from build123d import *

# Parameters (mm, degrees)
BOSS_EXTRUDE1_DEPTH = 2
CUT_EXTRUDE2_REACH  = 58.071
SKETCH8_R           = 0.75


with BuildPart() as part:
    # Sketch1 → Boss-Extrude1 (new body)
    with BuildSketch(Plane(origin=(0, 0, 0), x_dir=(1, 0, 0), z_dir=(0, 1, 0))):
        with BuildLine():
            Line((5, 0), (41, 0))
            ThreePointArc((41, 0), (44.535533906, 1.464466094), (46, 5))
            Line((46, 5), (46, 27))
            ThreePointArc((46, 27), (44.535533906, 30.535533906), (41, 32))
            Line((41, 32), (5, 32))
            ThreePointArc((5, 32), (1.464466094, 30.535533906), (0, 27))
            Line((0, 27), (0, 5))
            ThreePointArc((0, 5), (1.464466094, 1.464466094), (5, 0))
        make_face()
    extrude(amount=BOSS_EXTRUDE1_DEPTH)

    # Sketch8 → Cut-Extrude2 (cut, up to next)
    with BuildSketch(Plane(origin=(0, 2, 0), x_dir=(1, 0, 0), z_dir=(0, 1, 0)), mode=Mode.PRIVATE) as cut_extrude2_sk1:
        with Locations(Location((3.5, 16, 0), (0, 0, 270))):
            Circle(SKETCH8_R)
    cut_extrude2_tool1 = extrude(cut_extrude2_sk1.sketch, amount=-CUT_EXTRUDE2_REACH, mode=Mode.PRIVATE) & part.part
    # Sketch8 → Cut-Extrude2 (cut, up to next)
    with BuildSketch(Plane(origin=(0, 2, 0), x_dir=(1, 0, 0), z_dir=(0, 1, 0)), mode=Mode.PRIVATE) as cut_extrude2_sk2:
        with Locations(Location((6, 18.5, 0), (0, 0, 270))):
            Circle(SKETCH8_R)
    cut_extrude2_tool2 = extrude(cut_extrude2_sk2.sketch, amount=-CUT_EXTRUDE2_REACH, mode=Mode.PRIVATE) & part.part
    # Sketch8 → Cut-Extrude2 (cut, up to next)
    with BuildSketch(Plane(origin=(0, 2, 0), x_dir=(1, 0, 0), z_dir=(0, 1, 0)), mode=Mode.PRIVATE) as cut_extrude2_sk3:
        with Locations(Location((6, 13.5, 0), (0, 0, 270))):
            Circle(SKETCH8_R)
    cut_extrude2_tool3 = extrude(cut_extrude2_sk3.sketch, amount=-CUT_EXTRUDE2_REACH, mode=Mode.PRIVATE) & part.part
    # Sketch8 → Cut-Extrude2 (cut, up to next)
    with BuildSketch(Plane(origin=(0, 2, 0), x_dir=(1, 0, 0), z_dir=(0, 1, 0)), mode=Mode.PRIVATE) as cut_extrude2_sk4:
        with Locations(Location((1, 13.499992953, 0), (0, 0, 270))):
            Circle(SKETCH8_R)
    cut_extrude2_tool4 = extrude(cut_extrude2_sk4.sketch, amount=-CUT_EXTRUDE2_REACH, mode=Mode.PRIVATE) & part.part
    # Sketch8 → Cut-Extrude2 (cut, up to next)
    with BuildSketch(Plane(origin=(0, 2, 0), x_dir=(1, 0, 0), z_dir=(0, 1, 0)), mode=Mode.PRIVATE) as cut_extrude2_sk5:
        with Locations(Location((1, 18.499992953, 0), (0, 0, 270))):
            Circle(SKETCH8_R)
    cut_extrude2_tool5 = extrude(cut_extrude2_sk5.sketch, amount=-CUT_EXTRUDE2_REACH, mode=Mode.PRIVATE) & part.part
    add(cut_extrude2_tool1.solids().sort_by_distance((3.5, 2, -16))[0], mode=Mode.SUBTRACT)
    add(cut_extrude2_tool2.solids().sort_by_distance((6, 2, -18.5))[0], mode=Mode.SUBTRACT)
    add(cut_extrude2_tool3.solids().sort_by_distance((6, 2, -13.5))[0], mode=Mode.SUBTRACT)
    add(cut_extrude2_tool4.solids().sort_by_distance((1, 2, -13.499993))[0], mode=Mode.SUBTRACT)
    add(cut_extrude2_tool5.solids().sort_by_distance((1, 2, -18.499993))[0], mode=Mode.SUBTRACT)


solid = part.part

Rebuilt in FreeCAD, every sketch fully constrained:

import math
import FreeCAD as App
import Part
import Sketcher
from FreeCAD import Vector

doc = App.newDocument("Part")
params = doc.addObject("Spreadsheet::Sheet", "Params")
for row, (alias, value) in enumerate([
    ("sketch1_radius", "5 mm"),
    ("sketch1_width", "36 mm"),
    ("sketch1_height", "22 mm"),
    ("pad1_length", "2 mm"),
    ("sketch2_diameter", "1.5 mm"),
    ("sketch3_diameter", "1.5 mm"),
    ("sketch4_diameter", "1.5 mm"),
    ("sketch5_diameter", "1.5 mm"),
    ("sketch6_diameter", "1.5 mm"),
], start=1):
    params.set(f"A{row}", alias)
    params.set(f"B{row}", "=" + value)
    params.setAlias(f"B{row}", alias)

body = doc.addObject("PartDesign::Body", "Body")

sketch1 = doc.addObject("Sketcher::SketchObject", "Sketch")
body.addObject(sketch1)
sketch1.AttachmentSupport = (doc.XZ_Plane, [""])
sketch1.MapMode = "FlatFace"
sketch1.addGeometry([
    Part.LineSegment(Vector(5, 0, 0), Vector(41, 0, 0)),
    Part.ArcOfCircle(Part.Circle(Vector(41, -5, 0), Vector(0, 0, 1), 5), math.radians(0), math.radians(90)),
    Part.LineSegment(Vector(46, -5, 0), Vector(46, -27, 0)),
    Part.ArcOfCircle(Part.Circle(Vector(41, -27, 0), Vector(0, 0, 1), 5), math.radians(-90), math.radians(0)),
    Part.LineSegment(Vector(41, -32, 0), Vector(5, -32, 0)),
    Part.ArcOfCircle(Part.Circle(Vector(5, -27, 0), Vector(0, 0, 1), 5), math.radians(180), math.radians(270)),
    Part.LineSegment(Vector(0, -27, 0), Vector(0, -5, 0)),
    Part.ArcOfCircle(Part.Circle(Vector(5, -5, 0), Vector(0, 0, 1), 5), math.radians(90), math.radians(180)),
], False)
sketch1.addConstraint([
    Sketcher.Constraint("Tangent", 0, 2, 1, 2),
    Sketcher.Constraint("Tangent", 1, 1, 2, 1),
    Sketcher.Constraint("Tangent", 2, 2, 3, 2),
    Sketcher.Constraint("Tangent", 3, 1, 4, 1),
    Sketcher.Constraint("Tangent", 4, 2, 5, 2),
    Sketcher.Constraint("Tangent", 5, 1, 6, 1),
    Sketcher.Constraint("Tangent", 6, 2, 7, 2),
    Sketcher.Constraint("Tangent", 7, 1, 0, 1),
    Sketcher.Constraint("Horizontal", 0),
    Sketcher.Constraint("Vertical", 2),
    Sketcher.Constraint("Horizontal", 4),
    Sketcher.Constraint("Vertical", 6),
    Sketcher.Constraint("Equal", 1, 3),
    Sketcher.Constraint("Equal", 3, 5),
    Sketcher.Constraint("Equal", 5, 7),
    Sketcher.Constraint("PointOnObject", 0, 2, -1),
    Sketcher.Constraint("PointOnObject", 5, 1, -2),
    Sketcher.Constraint("Radius", 1, 5.0),
    Sketcher.Constraint("DistanceX", 0, 1, 0, 2, 36.0),
    Sketcher.Constraint("DistanceY", 2, 2, 2, 1, 22.0),
])
sketch1.setExpression("Constraints[17]", "Params.sketch1_radius")
sketch1.setExpression("Constraints[18]", "Params.sketch1_width")
sketch1.setExpression("Constraints[19]", "Params.sketch1_height")
pad1 = doc.addObject("PartDesign::Pad", "Pad")
body.addObject(pad1)
pad1.Profile = sketch1
pad1.setExpression("Length", "Params.pad1_length")
pad1.Reversed = True

sketch2 = doc.addObject("Sketcher::SketchObject", "Sketch001")
body.addObject(sketch2)
sketch2.AttachmentSupport = (doc.XZ_Plane, [""])
sketch2.MapMode = "FlatFace"
sketch2.AttachmentOffset = App.Placement(Vector(0, 0, -2), App.Rotation())
sketch2.addGeometry(Part.Circle(Vector(3.5, -16, 0), Vector(0, 0, 1), 0.8), False)
sketch2.addConstraint([
    Sketcher.Constraint("Diameter", 0, 1.5),
    Sketcher.Constraint("DistanceY", 0, 3, -1, 1, 16.0),
    Sketcher.Constraint("DistanceX", -1, 1, 0, 3, 3.5),
])
sketch2.setExpression("Constraints[0]", "Params.sketch2_diameter")
pocket1 = doc.addObject("PartDesign::Pocket", "Pocket")
body.addObject(pocket1)
pocket1.Profile = sketch2
pocket1.Type = "UpToFirst"
pocket1.Reversed = True

sketch3 = doc.addObject("Sketcher::SketchObject", "Sketch002")
body.addObject(sketch3)
sketch3.AttachmentSupport = (doc.XZ_Plane, [""])
sketch3.MapMode = "FlatFace"
sketch3.AttachmentOffset = App.Placement(Vector(0, 0, -2), App.Rotation())
sketch3.addGeometry(Part.Circle(Vector(6, -18.5, 0), Vector(0, 0, 1), 0.8), False)
sketch3.addConstraint([
    Sketcher.Constraint("Diameter", 0, 1.5),
    Sketcher.Constraint("DistanceX", -1, 1, 0, 3, 6.0),
    Sketcher.Constraint("DistanceY", 0, 3, -1, 1, 18.5),
])
sketch3.setExpression("Constraints[0]", "Params.sketch3_diameter")
pocket2 = doc.addObject("PartDesign::Pocket", "Pocket001")
body.addObject(pocket2)
pocket2.Profile = sketch3
pocket2.Type = "UpToFirst"
pocket2.Reversed = True

sketch4 = doc.addObject("Sketcher::SketchObject", "Sketch003")
body.addObject(sketch4)
sketch4.AttachmentSupport = (doc.XZ_Plane, [""])
sketch4.MapMode = "FlatFace"
sketch4.AttachmentOffset = App.Placement(Vector(0, 0, -2), App.Rotation())
sketch4.addGeometry(Part.Circle(Vector(6, -13.5, 0), Vector(0, 0, 1), 0.8), False)
sketch4.addConstraint([
    Sketcher.Constraint("Diameter", 0, 1.5),
    Sketcher.Constraint("DistanceX", -1, 1, 0, 3, 6.0),
    Sketcher.Constraint("DistanceY", 0, 3, -1, 1, 13.5),
])
sketch4.setExpression("Constraints[0]", "Params.sketch4_diameter")
pocket3 = doc.addObject("PartDesign::Pocket", "Pocket002")
body.addObject(pocket3)
pocket3.Profile = sketch4
pocket3.Type = "UpToFirst"
pocket3.Reversed = True

sketch5 = doc.addObject("Sketcher::SketchObject", "Sketch004")
body.addObject(sketch5)
sketch5.AttachmentSupport = (doc.XZ_Plane, [""])
sketch5.MapMode = "FlatFace"
sketch5.AttachmentOffset = App.Placement(Vector(0, 0, -2), App.Rotation())
sketch5.addGeometry(Part.Circle(Vector(1, -13.5, 0), Vector(0, 0, 1), 0.8), False)
sketch5.addConstraint([
    Sketcher.Constraint("Diameter", 0, 1.5),
    Sketcher.Constraint("DistanceX", -1, 1, 0, 3, 1.0),
    Sketcher.Constraint("DistanceY", 0, 3, -1, 1, 13.499993),
])
sketch5.setExpression("Constraints[0]", "Params.sketch5_diameter")
pocket4 = doc.addObject("PartDesign::Pocket", "Pocket003")
body.addObject(pocket4)
pocket4.Profile = sketch5
pocket4.Type = "UpToFirst"
pocket4.Reversed = True

sketch6 = doc.addObject("Sketcher::SketchObject", "Sketch005")
body.addObject(sketch6)
sketch6.AttachmentSupport = (doc.XZ_Plane, [""])
sketch6.MapMode = "FlatFace"
sketch6.AttachmentOffset = App.Placement(Vector(0, 0, -2), App.Rotation())
sketch6.addGeometry(Part.Circle(Vector(1, -18.5, 0), Vector(0, 0, 1), 0.8), False)
sketch6.addConstraint([
    Sketcher.Constraint("Diameter", 0, 1.5),
    Sketcher.Constraint("DistanceX", -1, 1, 0, 3, 1.0),
    Sketcher.Constraint("DistanceY", 0, 3, -1, 1, 18.499993),
])
sketch6.setExpression("Constraints[0]", "Params.sketch6_diameter")
pocket5 = doc.addObject("PartDesign::Pocket", "Pocket004")
body.addObject(pocket5)
pocket5.Profile = sketch6
pocket5.Type = "UpToFirst"
pocket5.Reversed = True

doc.recompute()
